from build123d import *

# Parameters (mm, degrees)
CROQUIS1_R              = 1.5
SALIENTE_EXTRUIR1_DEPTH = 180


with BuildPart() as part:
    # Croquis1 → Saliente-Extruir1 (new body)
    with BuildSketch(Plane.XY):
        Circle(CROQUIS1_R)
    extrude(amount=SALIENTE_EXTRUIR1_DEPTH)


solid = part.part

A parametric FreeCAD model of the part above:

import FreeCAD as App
import Part
import Sketcher

V = App.Vector

doc = App.newDocument("Part")
body = doc.addObject("PartDesign::Body", "Body")

# Sketch on XY plane
sketch1 = doc.addObject("Sketcher::SketchObject", "Sketch")
body.addObject(sketch1)
sketch1.AttachmentSupport = (doc.XY_Plane, [""])
sketch1.MapMode = "FlatFace"
sketch1.addGeometry(Part.Circle(V(0, 0, 0), V(0, 0, 1), 1.5), False)
sketch1.addConstraint([
    Sketcher.Constraint("Coincident", 0, 3, -1, 1),
    Sketcher.Constraint("Diameter", 0, 3.0),
])
pad1 = doc.addObject("PartDesign::Pad", "Pad")
body.addObject(pad1)
pad1.Profile = sketch1
pad1.Length = 180

doc.recompute()
